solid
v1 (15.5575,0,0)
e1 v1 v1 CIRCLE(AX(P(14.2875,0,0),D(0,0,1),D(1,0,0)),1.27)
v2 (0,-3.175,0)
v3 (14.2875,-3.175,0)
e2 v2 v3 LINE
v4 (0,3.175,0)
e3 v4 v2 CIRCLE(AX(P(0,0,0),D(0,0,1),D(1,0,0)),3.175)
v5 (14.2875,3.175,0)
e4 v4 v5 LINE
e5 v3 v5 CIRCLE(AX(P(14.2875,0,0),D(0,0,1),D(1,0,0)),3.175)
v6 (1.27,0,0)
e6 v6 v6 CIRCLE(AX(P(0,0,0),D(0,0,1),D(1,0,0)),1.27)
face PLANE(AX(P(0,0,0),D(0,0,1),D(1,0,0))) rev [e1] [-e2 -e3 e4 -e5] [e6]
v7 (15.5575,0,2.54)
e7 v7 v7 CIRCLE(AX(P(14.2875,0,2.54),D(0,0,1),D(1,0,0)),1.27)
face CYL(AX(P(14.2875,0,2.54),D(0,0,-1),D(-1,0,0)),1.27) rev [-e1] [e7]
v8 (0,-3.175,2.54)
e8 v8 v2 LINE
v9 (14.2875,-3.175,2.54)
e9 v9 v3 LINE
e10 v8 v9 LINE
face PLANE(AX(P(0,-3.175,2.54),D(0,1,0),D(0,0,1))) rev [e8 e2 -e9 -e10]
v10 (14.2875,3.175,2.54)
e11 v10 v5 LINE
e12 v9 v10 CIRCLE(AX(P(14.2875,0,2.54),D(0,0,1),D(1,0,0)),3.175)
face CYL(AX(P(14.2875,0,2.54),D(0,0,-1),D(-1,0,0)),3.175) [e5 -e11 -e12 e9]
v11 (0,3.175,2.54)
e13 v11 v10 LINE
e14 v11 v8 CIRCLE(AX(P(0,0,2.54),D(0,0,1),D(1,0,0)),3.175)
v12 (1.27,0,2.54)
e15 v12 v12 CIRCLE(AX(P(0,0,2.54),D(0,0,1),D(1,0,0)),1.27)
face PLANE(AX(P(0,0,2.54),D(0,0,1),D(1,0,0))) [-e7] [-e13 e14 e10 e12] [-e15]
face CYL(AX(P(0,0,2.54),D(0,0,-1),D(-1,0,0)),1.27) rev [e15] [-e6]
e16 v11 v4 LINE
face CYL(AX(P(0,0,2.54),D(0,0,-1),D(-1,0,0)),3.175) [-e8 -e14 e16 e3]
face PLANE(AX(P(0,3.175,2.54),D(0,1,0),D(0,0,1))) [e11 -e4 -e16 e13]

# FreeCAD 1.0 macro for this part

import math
import FreeCAD as App
import Part
import Sketcher

V = App.Vector
Q = App.Units.Quantity

doc = App.newDocument("Part")
body = doc.addObject("PartDesign::Body", "Body")

# Sketch on XY plane
sketch1 = body.newObject("Sketcher::SketchObject", "Sketch")
sketch1.AttachmentSupport = (doc.getObject("XY_Plane"), [""])
sketch1.MapMode = "FlatFace"
sketch1.addGeometry(Part.LineSegment(V(14.3, 3.2, 0), V(0, 3.2, 0)), False)
sketch1.addGeometry(Part.ArcOfCircle(Part.Circle(V(0, 0, 0), V(0, 0, 1), 3.2), math.radians(90), math.radians(270)), False)
sketch1.addGeometry(Part.LineSegment(V(0, -3.2, 0), V(14.3, -3.2, 0)), False)
sketch1.addGeometry(Part.ArcOfCircle(Part.Circle(V(14.3, 0, 0), V(0, 0, 1), 3.2), math.radians(-90), math.radians(90)), False)
sketch1.addGeometry(Part.Circle(V(0, 0, 0), V(0, 0, 1), 1.3), False)
sketch1.addGeometry(Part.Circle(V(14.3, 0, 0), V(0, 0, 1), 1.3), False)
sketch1.addConstraint(Sketcher.Constraint("Tangent", 0, 2, 1, 1))
sketch1.addConstraint(Sketcher.Constraint("Tangent", 1, 2, 2, 1))
sketch1.addConstraint(Sketcher.Constraint("Tangent", 2, 2, 3, 1))
sketch1.addConstraint(Sketcher.Constraint("Tangent", 3, 2, 0, 1))
sketch1.addConstraint(Sketcher.Constraint("Horizontal", 0))
sketch1.addConstraint(Sketcher.Constraint("Horizontal", 2))
sketch1.addConstraint(Sketcher.Constraint("Coincident", 1, 3, -1, 1))
sketch1.addConstraint(Sketcher.Constraint("Coincident", 4, 3, -1, 1))
sketch1.addConstraint(Sketcher.Constraint("Coincident", 5, 3, 3, 3))
sketch1.addConstraint(Sketcher.Constraint("Equal", 4, 5))
sketch1.addConstraint(Sketcher.Constraint("Diameter", 4, Q("0.1 in")))
sketch1.addConstraint(Sketcher.Constraint("Radius", 1, Q("0.125 in")))
sketch1.addConstraint(Sketcher.Constraint("DistanceX", 0, 2, 0, 1, Q("0.5625 in")))
pad1 = body.newObject("PartDesign::Pad", "Pad")
pad1.Profile = sketch1
pad1.Length = Q("0.1 in")

doc.recompute()
